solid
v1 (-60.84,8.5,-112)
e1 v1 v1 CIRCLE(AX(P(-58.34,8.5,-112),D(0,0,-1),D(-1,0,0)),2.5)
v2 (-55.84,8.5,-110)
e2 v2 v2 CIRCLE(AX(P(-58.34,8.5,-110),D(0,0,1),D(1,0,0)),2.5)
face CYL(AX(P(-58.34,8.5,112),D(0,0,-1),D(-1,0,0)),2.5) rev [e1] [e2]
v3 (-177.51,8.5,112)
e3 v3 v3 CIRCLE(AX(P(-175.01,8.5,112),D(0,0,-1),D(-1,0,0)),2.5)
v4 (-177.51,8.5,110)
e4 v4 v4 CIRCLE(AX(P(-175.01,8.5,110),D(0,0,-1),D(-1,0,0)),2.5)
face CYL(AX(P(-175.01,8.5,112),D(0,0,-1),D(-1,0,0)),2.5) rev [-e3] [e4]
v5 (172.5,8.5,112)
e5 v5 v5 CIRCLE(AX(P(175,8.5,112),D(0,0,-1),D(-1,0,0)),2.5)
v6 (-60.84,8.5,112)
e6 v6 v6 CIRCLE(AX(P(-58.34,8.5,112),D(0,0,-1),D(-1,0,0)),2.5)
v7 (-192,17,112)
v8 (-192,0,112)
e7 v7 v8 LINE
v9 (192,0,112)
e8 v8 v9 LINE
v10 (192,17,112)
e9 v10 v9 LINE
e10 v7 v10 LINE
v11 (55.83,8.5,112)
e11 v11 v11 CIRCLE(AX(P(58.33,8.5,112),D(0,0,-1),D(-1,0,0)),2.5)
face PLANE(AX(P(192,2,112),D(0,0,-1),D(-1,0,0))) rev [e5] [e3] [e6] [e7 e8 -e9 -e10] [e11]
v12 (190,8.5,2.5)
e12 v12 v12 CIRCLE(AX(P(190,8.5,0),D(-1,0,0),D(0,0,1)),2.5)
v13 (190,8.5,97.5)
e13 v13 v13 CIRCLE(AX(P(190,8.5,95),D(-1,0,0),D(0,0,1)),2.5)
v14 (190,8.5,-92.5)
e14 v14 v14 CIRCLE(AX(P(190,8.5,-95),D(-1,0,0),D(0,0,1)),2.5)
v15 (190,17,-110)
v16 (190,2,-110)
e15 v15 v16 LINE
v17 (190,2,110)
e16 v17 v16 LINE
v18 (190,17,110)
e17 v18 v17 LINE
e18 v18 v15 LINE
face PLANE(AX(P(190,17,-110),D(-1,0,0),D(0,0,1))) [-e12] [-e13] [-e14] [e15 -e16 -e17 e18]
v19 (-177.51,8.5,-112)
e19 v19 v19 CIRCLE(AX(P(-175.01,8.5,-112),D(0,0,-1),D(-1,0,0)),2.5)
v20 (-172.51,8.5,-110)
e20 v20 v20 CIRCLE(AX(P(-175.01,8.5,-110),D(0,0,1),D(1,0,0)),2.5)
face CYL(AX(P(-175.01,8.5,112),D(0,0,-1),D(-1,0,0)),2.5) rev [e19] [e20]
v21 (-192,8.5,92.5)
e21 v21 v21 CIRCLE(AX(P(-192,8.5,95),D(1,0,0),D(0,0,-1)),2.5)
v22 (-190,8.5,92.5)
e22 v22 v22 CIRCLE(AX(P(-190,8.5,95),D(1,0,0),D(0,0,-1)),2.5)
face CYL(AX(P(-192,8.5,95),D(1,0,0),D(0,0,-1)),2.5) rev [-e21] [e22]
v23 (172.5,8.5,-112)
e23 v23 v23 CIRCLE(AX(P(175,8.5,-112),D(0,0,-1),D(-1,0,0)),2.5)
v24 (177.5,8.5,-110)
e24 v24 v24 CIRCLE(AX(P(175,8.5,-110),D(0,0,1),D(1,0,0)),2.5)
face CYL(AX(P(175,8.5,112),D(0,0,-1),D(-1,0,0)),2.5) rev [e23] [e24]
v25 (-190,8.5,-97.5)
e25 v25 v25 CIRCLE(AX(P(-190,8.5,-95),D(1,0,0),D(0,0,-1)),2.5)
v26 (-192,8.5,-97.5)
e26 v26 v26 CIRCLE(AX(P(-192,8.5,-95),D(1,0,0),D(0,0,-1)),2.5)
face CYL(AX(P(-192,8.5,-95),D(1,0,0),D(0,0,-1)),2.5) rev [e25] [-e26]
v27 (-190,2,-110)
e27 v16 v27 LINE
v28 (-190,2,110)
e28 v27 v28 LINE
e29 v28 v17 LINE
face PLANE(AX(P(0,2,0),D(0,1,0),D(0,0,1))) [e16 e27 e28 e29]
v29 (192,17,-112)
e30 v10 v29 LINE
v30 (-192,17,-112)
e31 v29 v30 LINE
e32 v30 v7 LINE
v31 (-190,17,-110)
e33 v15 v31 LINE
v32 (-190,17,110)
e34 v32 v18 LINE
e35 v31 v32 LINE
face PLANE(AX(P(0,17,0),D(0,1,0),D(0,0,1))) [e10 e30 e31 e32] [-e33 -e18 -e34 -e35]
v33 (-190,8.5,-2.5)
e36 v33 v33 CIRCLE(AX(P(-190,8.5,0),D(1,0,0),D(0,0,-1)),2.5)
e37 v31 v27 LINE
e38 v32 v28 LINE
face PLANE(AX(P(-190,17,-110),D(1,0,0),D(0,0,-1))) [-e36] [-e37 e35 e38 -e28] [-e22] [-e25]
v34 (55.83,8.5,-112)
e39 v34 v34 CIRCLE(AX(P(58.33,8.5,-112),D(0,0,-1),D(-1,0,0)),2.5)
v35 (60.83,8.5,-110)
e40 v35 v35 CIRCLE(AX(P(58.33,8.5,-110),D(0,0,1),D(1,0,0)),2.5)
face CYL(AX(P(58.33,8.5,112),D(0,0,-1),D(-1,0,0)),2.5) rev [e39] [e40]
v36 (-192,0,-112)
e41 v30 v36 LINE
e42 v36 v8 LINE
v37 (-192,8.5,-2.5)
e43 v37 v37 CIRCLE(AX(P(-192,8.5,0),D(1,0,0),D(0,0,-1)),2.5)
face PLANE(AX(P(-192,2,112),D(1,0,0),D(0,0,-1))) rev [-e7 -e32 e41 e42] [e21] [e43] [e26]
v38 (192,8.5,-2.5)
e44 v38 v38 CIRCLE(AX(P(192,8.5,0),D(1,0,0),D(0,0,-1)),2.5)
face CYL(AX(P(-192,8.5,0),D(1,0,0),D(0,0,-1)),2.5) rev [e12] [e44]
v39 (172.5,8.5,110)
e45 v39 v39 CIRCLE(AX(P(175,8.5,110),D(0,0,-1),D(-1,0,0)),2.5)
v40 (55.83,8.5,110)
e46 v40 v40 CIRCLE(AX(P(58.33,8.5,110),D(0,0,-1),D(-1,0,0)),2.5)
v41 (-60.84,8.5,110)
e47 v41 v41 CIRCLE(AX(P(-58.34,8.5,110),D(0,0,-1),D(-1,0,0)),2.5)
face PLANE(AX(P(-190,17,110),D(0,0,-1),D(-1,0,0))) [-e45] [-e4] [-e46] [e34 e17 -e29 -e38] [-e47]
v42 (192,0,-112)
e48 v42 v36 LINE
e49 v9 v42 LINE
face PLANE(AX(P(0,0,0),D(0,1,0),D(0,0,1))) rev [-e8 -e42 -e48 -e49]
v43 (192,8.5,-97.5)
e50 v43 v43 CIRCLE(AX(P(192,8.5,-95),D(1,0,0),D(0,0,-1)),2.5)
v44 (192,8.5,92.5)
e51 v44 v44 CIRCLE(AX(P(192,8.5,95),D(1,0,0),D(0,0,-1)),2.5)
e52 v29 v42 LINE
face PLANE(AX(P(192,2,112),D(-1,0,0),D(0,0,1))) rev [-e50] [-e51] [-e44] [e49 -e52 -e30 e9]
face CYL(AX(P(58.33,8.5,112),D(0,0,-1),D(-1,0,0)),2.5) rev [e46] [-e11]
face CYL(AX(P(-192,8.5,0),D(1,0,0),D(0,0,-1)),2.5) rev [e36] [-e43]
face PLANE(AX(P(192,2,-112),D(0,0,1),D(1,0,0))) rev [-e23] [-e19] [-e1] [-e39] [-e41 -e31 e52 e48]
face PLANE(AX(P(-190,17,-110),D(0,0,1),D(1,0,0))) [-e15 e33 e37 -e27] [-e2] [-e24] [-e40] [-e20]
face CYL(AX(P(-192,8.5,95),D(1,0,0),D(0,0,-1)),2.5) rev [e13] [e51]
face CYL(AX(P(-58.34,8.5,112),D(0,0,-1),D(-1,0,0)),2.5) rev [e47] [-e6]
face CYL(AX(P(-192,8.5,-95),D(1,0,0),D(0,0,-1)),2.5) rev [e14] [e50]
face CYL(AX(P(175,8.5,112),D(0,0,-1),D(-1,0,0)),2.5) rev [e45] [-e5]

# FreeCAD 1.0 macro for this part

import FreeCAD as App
import Part
import Sketcher
from FreeCAD import Vector
Q = App.Units.Quantity

doc = App.newDocument("Part")
body = doc.addObject("PartDesign::Body", "Body")

# Sketch on XZ plane
sketch1 = body.newObject("Sketcher::SketchObject", "Sketch")
sketch1.AttachmentSupport = (doc.getObject("XZ_Plane"), [""])
sketch1.MapMode = "FlatFace"
sketch1.addGeometry([
    Part.LineSegment(Vector(-192, -112, 0), Vector(-192, 112, 0)),
    Part.LineSegment(Vector(-192, 112, 0), Vector(192, 112, 0)),
    Part.LineSegment(Vector(192, 112, 0), Vector(192, -112, 0)),
    Part.LineSegment(Vector(192, -112, 0), Vector(-192, -112, 0)),
], False)
sketch1.addConstraint([
    Sketcher.Constraint("Coincident", 0, 2, 1, 1),
    Sketcher.Constraint("Coincident", 1, 2, 2, 1),
    Sketcher.Constraint("Coincident", 2, 2, 3, 1),
    Sketcher.Constraint("Coincident", 3, 2, 0, 1),
    Sketcher.Constraint("Vertical", 0),
    Sketcher.Constraint("Horizontal", 1),
    Sketcher.Constraint("Vertical", 2),
    Sketcher.Constraint("Horizontal", 3),
    Sketcher.Constraint("Symmetric", 0, 2, 2, 2, -1, 1),
    Sketcher.Constraint("DistanceX", 1, 1, 1, 2, Q("384 mm")),
    Sketcher.Constraint("DistanceY", 0, 1, 0, 2, Q("224 mm")),
])
pad1 = body.newObject("PartDesign::Pad", "Pad")
pad1.Profile = sketch1
pad1.Length = 2
pad1.Reversed = True

# Sketch on XZ plane
sketch2 = body.newObject("Sketcher::SketchObject", "Sketch001")
sketch2.AttachmentSupport = (doc.getObject("XZ_Plane"), [""])
sketch2.MapMode = "FlatFace"
sketch2.AttachmentOffset = App.Placement(Vector(0, 0, -2), App.Rotation())
sketch2.addGeometry([
    Part.LineSegment(Vector(-192, -112, 0), Vector(-192, 112, 0)),  # 0
    Part.LineSegment(Vector(-192, 112, 0), Vector(192, 112, 0)),  # 1
    Part.LineSegment(Vector(192, 112, 0), Vector(192, -112, 0)),  # 2
    Part.LineSegment(Vector(192, -112, 0), Vector(-192, -112, 0)),  # 3
    Part.LineSegment(Vector(190, 110, 0), Vector(-190, 110, 0)),  # 4
    Part.LineSegment(Vector(-190, 110, 0), Vector(-190, -110, 0)),  # 5
    Part.LineSegment(Vector(-190, -110, 0), Vector(190, -110, 0)),  # 6
    Part.LineSegment(Vector(190, -110, 0), Vector(190, 110, 0)),  # 7
], False)
sketch2.addConstraint([
    Sketcher.Constraint("Coincident", 0, 2, 1, 1),
    Sketcher.Constraint("Coincident", 1, 2, 2, 1),
    Sketcher.Constraint("Coincident", 2, 2, 3, 1),
    Sketcher.Constraint("Coincident", 3, 2, 0, 1),
    Sketcher.Constraint("Coincident", 4, 2, 5, 1),
    Sketcher.Constraint("Coincident", 5, 2, 6, 1),
    Sketcher.Constraint("Coincident", 6, 2, 7, 1),
    Sketcher.Constraint("Coincident", 7, 2, 4, 1),
    Sketcher.Constraint("Vertical", 0),
    Sketcher.Constraint("Horizontal", 1),
    Sketcher.Constraint("Vertical", 2),
    Sketcher.Constraint("Horizontal", 3),
    Sketcher.Constraint("Horizontal", 4),
    Sketcher.Constraint("Vertical", 5),
    Sketcher.Constraint("Horizontal", 6),
    Sketcher.Constraint("Vertical", 7),
    Sketcher.Constraint("Symmetric", 0, 2, 2, 2, -1, 1),
    Sketcher.Constraint("Symmetric", 4, 2, 6, 2, -1, 1),
    Sketcher.Constraint("DistanceX", 1, 1, 1, 2, Q("384 mm")),
    Sketcher.Constraint("DistanceX", 4, 2, 4, 1, Q("380 mm")),
    Sketcher.Constraint("DistanceY", 0, 1, 0, 2, Q("224 mm")),
    Sketcher.Constraint("DistanceY", 5, 2, 5, 1, Q("220 mm")),
])
pad2 = body.newObject("PartDesign::Pad", "Pad001")
pad2.Profile = sketch2
pad2.Length = 15
pad2.Reversed = True

# Sketch on XY plane
sketch3 = body.newObject("Sketcher::SketchObject", "Sketch002")
sketch3.AttachmentSupport = (doc.getObject("XY_Plane"), [""])
sketch3.MapMode = "FlatFace"
sketch3.AttachmentOffset = App.Placement(Vector(0, 0, -112), App.Rotation())
sketch3.addGeometry([
    Part.Circle(Vector(175, 8.5, 0), Vector(0, 0, 1), 2.5),
    Part.Circle(Vector(58.33, 8.5, 0), Vector(0, 0, 1), 2.5),
    Part.Circle(Vector(-58.34, 8.5, 0), Vector(0, 0, 1), 2.5),
    Part.Circle(Vector(-175.01, 8.5, 0), Vector(0, 0, 1), 2.5),
], False)
sketch3.addConstraint([
    Sketcher.Constraint("Equal", 0, 1),
    Sketcher.Constraint("Equal", 1, 2),
    Sketcher.Constraint("Equal", 2, 3),
    Sketcher.Constraint("Horizontal", 0, 3, 1, 3),
    Sketcher.Constraint("Horizontal", 1, 3, 2, 3),
    Sketcher.Constraint("Horizontal", 2, 3, 3, 3),
    Sketcher.Constraint("Diameter", 0, Q("5 mm")),
    Sketcher.Constraint("DistanceX", -1, 1, 0, 3, Q("175 mm")),
    Sketcher.Constraint("DistanceY", -1, 1, 0, 3, Q("8.5 mm")),
    Sketcher.Constraint("DistanceX", -1, 1, 1, 3, Q("58.33 mm")),
    Sketcher.Constraint("DistanceX", 2, 3, -1, 1, Q("58.34 mm")),
    Sketcher.Constraint("DistanceX", 3, 3, -1, 1, Q("175.01 mm")),
])
pocket1 = body.newObject("PartDesign::Pocket", "Pocket")
pocket1.Profile = sketch3
pocket1.Type = "ThroughAll"
pocket1.Reversed = True

# Sketch on YZ plane
sketch4 = body.newObject("Sketcher::SketchObject", "Sketch003")
sketch4.AttachmentSupport = (doc.getObject("YZ_Plane"), [""])
sketch4.MapMode = "FlatFace"
sketch4.AttachmentOffset = App.Placement(Vector(0, 0, 192), App.Rotation())
sketch4.addGeometry([
    Part.Circle(Vector(8.5, 95, 0), Vector(0, 0, 1), 2.5),
    Part.Circle(Vector(8.5, 0, 0), Vector(0, 0, 1), 2.5),
    Part.Circle(Vector(8.5, -95, 0), Vector(0, 0, 1), 2.5),
], False)
sketch4.addConstraint([
    Sketcher.Constraint("Equal", 0, 1),
    Sketcher.Constraint("Equal", 1, 2),
    Sketcher.Constraint("Symmetric", 0, 3, 2, 3, -1),
    Sketcher.Constraint("PointOnObject", 1, 3, -1),
    Sketcher.Constraint("Vertical", 0, 3, 1, 3),
    Sketcher.Constraint("Diameter", 0, Q("5 mm")),
    Sketcher.Constraint("DistanceY", -1, 1, 0, 3, Q("95 mm")),
    Sketcher.Constraint("DistanceX", -1, 1, 0, 3, Q("8.5 mm")),
])
pocket2 = body.newObject("PartDesign::Pocket", "Pocket001")
pocket2.Profile = sketch4
pocket2.Type = "ThroughAll"

doc.recompute()
